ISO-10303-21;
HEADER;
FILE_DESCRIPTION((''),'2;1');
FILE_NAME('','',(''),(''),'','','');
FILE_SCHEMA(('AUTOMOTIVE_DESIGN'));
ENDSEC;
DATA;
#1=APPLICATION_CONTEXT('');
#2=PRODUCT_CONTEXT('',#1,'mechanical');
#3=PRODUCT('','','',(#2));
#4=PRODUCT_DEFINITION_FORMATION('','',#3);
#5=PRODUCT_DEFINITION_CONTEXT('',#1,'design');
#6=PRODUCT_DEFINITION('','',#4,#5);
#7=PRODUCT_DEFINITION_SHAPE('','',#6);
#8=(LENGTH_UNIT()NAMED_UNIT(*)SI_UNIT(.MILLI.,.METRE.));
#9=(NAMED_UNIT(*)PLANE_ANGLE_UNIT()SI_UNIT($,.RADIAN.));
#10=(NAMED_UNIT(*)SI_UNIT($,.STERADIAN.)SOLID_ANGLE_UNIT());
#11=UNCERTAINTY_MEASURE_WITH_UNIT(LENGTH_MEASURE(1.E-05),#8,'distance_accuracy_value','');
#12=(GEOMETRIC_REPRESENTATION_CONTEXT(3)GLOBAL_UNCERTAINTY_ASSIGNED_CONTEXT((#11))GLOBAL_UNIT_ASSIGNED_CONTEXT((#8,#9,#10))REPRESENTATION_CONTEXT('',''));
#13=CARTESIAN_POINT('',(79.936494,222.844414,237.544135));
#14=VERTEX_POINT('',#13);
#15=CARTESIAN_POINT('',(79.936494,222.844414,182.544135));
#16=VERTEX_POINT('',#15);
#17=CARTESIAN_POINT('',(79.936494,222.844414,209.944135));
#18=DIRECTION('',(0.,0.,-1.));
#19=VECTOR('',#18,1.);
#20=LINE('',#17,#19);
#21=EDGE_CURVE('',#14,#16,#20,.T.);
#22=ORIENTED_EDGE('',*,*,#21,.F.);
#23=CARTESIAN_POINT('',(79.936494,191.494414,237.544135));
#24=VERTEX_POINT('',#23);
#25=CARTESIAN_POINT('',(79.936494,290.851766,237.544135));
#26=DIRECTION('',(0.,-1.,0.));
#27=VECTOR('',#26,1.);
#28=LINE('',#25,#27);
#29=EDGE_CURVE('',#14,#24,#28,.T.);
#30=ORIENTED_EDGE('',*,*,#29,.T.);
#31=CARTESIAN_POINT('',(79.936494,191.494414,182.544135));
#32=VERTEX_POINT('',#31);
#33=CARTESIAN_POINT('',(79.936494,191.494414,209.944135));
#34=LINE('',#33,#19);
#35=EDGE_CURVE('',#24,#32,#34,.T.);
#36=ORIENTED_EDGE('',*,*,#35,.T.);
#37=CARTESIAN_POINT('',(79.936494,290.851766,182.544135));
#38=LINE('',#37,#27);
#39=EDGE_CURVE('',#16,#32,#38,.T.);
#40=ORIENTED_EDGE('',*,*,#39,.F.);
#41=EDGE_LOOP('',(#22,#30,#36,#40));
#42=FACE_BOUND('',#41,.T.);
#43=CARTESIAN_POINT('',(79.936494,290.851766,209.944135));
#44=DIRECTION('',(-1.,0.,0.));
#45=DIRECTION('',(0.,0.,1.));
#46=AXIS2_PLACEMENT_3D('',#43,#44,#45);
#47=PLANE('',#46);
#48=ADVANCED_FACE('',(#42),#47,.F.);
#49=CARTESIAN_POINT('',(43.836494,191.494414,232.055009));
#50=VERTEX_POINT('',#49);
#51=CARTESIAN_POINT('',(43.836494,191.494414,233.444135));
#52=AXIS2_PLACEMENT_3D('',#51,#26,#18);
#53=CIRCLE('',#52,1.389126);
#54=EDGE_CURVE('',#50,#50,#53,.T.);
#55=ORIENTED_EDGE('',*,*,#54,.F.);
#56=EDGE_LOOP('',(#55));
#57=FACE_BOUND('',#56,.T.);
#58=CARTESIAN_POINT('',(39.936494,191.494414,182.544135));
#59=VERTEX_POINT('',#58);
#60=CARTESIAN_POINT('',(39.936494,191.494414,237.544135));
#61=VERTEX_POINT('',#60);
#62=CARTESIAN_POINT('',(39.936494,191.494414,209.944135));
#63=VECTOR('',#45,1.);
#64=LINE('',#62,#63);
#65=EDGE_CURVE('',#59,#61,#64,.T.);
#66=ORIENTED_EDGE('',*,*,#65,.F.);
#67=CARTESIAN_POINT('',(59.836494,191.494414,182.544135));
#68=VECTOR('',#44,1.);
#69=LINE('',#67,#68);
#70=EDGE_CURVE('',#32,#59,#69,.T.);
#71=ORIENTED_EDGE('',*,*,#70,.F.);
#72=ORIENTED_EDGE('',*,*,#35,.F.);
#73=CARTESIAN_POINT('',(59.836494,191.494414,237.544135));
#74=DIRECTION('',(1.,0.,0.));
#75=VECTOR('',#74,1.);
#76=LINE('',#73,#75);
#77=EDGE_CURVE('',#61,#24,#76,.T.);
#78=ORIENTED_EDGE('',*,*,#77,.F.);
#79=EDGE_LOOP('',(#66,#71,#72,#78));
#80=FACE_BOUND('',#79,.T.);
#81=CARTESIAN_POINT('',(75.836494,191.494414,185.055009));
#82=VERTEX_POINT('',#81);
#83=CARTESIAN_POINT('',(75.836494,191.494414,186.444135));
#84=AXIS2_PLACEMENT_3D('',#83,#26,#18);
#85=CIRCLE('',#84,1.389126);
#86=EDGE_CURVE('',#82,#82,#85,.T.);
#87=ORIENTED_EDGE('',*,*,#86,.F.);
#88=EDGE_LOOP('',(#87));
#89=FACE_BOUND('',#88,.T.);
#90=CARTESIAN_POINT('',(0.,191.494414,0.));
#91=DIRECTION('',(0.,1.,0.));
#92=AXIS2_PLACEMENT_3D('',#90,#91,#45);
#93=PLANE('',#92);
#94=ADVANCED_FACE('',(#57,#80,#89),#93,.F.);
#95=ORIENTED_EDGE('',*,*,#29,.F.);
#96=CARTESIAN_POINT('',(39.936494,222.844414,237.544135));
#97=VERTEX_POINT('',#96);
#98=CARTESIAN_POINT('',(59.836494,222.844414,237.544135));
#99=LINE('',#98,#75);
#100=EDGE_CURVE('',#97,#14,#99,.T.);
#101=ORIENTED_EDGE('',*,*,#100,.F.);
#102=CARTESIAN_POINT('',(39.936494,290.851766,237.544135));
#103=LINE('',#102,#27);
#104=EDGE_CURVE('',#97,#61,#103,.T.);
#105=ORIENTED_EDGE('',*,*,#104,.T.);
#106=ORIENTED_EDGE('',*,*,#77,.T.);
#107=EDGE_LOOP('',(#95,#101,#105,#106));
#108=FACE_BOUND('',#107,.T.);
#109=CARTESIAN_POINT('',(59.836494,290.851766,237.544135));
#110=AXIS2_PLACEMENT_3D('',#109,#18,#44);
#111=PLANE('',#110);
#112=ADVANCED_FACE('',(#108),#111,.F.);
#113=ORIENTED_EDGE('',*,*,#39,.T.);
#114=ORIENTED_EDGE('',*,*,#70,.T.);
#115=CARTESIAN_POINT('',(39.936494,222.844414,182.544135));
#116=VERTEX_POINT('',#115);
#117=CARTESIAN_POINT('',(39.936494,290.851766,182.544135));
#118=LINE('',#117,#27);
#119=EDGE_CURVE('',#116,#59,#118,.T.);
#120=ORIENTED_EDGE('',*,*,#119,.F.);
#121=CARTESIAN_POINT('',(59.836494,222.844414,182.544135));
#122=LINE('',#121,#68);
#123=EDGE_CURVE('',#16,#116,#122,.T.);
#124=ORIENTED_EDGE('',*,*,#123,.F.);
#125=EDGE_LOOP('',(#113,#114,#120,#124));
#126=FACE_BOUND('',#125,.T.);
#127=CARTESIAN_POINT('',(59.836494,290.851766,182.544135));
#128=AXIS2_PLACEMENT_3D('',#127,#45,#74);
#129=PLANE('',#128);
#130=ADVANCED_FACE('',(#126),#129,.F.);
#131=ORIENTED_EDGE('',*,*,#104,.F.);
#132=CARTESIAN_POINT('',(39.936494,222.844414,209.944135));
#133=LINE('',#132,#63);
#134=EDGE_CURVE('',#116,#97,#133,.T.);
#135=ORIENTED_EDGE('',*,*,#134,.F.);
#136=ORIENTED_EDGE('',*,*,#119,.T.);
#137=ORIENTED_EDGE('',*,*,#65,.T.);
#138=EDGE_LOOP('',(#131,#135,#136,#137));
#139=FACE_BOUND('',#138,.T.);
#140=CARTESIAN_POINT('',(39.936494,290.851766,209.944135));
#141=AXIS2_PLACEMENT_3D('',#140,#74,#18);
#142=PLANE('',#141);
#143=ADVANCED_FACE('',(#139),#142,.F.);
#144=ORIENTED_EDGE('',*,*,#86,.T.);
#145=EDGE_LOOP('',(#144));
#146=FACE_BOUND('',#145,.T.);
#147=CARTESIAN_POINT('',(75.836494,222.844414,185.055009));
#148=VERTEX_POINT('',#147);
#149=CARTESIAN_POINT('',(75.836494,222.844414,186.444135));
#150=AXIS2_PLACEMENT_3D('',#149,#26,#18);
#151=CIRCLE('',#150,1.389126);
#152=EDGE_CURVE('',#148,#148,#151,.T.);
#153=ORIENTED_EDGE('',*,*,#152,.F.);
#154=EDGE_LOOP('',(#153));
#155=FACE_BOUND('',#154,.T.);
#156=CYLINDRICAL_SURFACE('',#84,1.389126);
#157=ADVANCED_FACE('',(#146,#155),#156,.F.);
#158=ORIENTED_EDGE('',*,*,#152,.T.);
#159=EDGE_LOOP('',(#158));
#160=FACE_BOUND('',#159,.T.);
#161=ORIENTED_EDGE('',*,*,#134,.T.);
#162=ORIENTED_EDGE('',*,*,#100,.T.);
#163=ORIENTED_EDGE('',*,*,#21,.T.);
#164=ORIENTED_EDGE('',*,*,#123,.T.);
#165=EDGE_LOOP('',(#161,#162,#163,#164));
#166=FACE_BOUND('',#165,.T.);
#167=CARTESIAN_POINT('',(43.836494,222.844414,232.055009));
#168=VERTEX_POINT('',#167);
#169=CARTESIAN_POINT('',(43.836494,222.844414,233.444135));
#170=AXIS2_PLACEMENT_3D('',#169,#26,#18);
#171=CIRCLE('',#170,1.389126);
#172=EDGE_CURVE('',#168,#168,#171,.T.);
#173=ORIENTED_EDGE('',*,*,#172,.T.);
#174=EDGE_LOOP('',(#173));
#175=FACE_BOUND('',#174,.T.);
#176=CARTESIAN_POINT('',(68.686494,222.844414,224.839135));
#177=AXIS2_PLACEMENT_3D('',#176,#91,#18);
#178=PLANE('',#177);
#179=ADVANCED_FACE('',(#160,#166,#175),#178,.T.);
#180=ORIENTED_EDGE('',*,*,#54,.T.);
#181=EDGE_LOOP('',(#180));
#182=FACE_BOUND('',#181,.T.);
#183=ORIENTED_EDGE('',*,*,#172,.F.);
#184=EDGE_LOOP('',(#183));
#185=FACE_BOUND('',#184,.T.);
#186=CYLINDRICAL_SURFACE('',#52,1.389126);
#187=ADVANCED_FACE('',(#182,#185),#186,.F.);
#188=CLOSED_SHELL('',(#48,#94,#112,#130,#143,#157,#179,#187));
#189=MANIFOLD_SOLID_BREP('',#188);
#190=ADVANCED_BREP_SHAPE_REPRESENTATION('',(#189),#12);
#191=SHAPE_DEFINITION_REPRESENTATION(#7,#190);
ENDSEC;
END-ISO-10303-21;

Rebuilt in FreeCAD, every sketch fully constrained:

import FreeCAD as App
import Part
import Sketcher

V = App.Vector

doc = App.newDocument("Part")
body = doc.addObject("PartDesign::Body", "Body")

sketch1 = doc.addObject("Sketcher::SketchObject", "Sketch")
body.addObject(sketch1)
sketch1.AttachmentSupport = (doc.XZ_Plane, [""])
sketch1.MapMode = "FlatFace"
sketch1.AttachmentOffset = App.Placement(V(0, 0, -191.494414), App.Rotation())
sketch1.addGeometry([
    Part.LineSegment(V(40, 183, 0), V(40, 238, 0)),
    Part.LineSegment(V(40, 238, 0), V(80, 238, 0)),
    Part.LineSegment(V(80, 238, 0), V(80, 183, 0)),
    Part.LineSegment(V(80, 183, 0), V(40, 183, 0)),
], False)
sketch1.addConstraint([
    Sketcher.Constraint("Coincident", 0, 2, 1, 1),
    Sketcher.Constraint("Coincident", 1, 2, 2, 1),
    Sketcher.Constraint("Coincident", 2, 2, 3, 1),
    Sketcher.Constraint("Coincident", 3, 2, 0, 1),
    Sketcher.Constraint("Vertical", 0),
    Sketcher.Constraint("Horizontal", 1),
    Sketcher.Constraint("Vertical", 2),
    Sketcher.Constraint("Horizontal", 3),
    Sketcher.Constraint("DistanceX", 1, 1, 1, 2, 40.0),
    Sketcher.Constraint("DistanceY", 0, 1, 0, 2, 55.0),
    Sketcher.Constraint("DistanceX", -1, 1, 0, 2, 39.936494),
    Sketcher.Constraint("DistanceY", -1, 1, 0, 2, 237.544135),
])
pad1 = doc.addObject("PartDesign::Pad", "Pad")
body.addObject(pad1)
pad1.Profile = sketch1
pad1.Length = 31.35
pad1.Reversed = True

sketch2 = doc.addObject("Sketcher::SketchObject", "Sketch001")
body.addObject(sketch2)
sketch2.AttachmentSupport = (doc.XZ_Plane, [""])
sketch2.MapMode = "FlatFace"
sketch2.AttachmentOffset = App.Placement(V(0, 0, -191.494414), App.Rotation())
sketch2.addGeometry([
    Part.Circle(V(75.8, 186.4, 0), V(0, 0, 1), 1.4),
    Part.Circle(V(43.8, 233.4, 0), V(0, 0, 1), 1.4),
], False)
sketch2.addConstraint([
    Sketcher.Constraint("Equal", 0, 1),
    Sketcher.Constraint("DistanceX", 1, 3, 0, 3, 32.0),
    Sketcher.Constraint("DistanceY", 0, 3, 1, 3, 47.0),
    Sketcher.Constraint("Diameter", 0, 2.778252),
    Sketcher.Constraint("DistanceX", -1, 1, 0, 3, 75.836494),
    Sketcher.Constraint("DistanceY", -1, 1, 0, 3, 186.444135),
])
doc.recompute()
hole = doc.addObject("PartDesign::Hole", "Hole")
body.addObject(hole)
hole.Profile = sketch2
hole.ThreadType = "None"
hole.Diameter = 2.778252
hole.DepthType = "ThroughAll"

doc.recompute()
